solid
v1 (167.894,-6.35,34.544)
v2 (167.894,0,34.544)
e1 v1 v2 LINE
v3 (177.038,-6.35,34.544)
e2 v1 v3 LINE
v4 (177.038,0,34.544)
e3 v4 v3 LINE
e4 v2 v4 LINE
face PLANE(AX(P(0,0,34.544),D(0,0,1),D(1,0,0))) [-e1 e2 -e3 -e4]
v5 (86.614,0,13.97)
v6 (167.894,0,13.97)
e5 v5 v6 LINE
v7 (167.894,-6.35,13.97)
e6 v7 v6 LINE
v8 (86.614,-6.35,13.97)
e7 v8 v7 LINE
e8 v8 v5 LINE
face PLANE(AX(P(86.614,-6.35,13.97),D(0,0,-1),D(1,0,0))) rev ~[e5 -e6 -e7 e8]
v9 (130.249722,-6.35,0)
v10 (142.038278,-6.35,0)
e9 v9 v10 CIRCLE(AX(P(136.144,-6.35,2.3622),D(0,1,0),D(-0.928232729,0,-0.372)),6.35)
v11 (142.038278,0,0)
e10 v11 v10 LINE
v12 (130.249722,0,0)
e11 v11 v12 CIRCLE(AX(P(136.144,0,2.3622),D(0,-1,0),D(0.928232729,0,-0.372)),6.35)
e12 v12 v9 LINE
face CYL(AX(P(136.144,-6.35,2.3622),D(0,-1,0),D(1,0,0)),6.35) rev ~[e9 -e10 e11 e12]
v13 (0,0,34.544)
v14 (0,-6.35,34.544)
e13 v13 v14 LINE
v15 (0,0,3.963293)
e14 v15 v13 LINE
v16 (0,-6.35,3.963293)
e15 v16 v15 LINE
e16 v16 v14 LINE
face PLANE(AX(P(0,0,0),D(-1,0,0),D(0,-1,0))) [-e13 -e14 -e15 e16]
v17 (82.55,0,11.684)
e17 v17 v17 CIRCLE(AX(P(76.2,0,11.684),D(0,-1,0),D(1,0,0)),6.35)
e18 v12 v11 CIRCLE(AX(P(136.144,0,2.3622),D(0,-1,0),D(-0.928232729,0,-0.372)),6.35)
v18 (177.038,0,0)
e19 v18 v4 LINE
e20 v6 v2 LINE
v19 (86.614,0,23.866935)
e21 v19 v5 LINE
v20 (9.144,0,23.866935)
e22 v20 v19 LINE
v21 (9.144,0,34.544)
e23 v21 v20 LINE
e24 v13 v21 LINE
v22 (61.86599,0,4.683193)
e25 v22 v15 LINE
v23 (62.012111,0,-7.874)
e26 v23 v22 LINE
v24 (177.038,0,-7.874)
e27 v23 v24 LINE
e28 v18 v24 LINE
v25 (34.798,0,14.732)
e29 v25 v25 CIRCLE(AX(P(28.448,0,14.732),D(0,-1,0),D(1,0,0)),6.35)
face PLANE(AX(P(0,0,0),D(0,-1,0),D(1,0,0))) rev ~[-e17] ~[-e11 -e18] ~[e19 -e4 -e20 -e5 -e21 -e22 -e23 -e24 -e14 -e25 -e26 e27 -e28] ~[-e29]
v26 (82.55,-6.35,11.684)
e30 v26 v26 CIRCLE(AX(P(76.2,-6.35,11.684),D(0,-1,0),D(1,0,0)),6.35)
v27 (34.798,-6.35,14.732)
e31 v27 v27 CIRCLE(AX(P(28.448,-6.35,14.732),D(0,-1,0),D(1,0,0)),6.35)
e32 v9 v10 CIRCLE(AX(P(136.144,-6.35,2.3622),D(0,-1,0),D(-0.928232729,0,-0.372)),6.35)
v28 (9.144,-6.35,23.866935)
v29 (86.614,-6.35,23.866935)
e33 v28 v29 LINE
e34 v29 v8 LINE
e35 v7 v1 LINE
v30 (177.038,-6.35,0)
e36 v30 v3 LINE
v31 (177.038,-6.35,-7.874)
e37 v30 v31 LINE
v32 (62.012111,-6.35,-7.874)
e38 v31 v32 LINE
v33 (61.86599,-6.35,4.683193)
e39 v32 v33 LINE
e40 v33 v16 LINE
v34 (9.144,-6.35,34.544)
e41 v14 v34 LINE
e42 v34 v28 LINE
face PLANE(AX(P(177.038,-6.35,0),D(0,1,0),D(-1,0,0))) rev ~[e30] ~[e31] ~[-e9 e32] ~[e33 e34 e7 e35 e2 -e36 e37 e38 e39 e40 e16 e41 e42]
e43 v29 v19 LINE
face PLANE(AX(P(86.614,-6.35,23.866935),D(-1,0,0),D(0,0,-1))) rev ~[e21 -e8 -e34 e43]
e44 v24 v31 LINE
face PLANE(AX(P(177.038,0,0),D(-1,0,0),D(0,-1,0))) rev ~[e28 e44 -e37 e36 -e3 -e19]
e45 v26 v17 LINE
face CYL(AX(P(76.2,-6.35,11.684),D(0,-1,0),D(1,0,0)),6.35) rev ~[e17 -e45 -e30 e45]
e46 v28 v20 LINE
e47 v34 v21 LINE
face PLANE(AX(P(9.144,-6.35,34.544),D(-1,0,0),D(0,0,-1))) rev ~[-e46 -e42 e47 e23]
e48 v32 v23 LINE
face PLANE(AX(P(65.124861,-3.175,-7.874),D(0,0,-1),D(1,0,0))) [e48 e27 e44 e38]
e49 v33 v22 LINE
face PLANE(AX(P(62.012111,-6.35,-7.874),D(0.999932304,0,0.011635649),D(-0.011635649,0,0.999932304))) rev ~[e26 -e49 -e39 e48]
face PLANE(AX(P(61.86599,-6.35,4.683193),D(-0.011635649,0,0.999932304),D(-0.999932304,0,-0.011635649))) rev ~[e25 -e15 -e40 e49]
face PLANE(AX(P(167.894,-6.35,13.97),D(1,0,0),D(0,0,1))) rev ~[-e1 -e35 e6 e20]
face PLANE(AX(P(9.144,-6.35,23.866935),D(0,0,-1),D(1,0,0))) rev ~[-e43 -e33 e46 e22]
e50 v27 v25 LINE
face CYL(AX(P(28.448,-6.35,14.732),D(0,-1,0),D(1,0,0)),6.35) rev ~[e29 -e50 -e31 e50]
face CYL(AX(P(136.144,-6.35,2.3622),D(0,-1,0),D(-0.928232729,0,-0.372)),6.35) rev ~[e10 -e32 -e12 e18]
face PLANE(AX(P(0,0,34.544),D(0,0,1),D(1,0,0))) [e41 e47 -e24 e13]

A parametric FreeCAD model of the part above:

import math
import FreeCAD as App
import Part
import Sketcher
from FreeCAD import Vector
Q = App.Units.Quantity

doc = App.newDocument("Part")
body = doc.addObject("PartDesign::Body", "Body")

# Sketch on XZ plane
sketch1 = doc.addObject("Sketcher::SketchObject", "Sketch")
body.addObject(sketch1)
sketch1.AttachmentSupport = (doc.XZ_Plane, [""])
sketch1.MapMode = "FlatFace"
sketch1.addGeometry(Part.LineSegment(Vector(0, 35, 0), Vector(0, 0, 0)), False)
sketch1.addGeometry(Part.LineSegment(Vector(0, 0, 0), Vector(177, 0, 0)), False)
sketch1.addGeometry(Part.LineSegment(Vector(177, 0, 0), Vector(177, 35, 0)), False)
sketch1.addGeometry(Part.LineSegment(Vector(177, 35, 0), Vector(0, 35, 0)), False)
sketch1.addConstraint(Sketcher.Constraint("Coincident", 0, 2, 1, 1))
sketch1.addConstraint(Sketcher.Constraint("Coincident", 1, 2, 2, 1))
sketch1.addConstraint(Sketcher.Constraint("Coincident", 2, 2, 3, 1))
sketch1.addConstraint(Sketcher.Constraint("Coincident", 3, 2, 0, 1))
sketch1.addConstraint(Sketcher.Constraint("Vertical", 0))
sketch1.addConstraint(Sketcher.Constraint("Horizontal", 1))
sketch1.addConstraint(Sketcher.Constraint("Vertical", 2))
sketch1.addConstraint(Sketcher.Constraint("Horizontal", 3))
sketch1.addConstraint(Sketcher.Constraint("Coincident", 0, 2, -1, 1))
sketch1.addConstraint(Sketcher.Constraint("DistanceX", 1, 1, 1, 2, Q("6.97 in")))
sketch1.addConstraint(Sketcher.Constraint("DistanceY", 0, 2, 0, 1, Q("1.36 in")))
pad1 = doc.addObject("PartDesign::Pad", "Pad")
body.addObject(pad1)
pad1.Profile = sketch1
pad1.Length = Q("0.25 in")

# Sketch on XZ plane
sketch2 = doc.addObject("Sketcher::SketchObject", "Sketch001")
body.addObject(sketch2)
sketch2.AttachmentSupport = (doc.XZ_Plane, [""])
sketch2.MapMode = "FlatFace"
sketch2.AttachmentOffset = App.Placement(Vector(0, 0, 0.25 * 25.4), App.Rotation())
sketch2.addGeometry(Part.Circle(Vector(28, 15, 0), Vector(0, 0, 1), 6), False)
sketch2.addConstraint(Sketcher.Constraint("Diameter", 0, Q("0.5 in")))
sketch2.addConstraint(Sketcher.Constraint("DistanceX", -1, 1, 0, 3, Q("1.12 in")))
sketch2.addConstraint(Sketcher.Constraint("DistanceY", -1, 1, 0, 3, Q("0.58 in")))
pocket1 = doc.addObject("PartDesign::Pocket", "Pocket")
body.addObject(pocket1)
pocket1.Profile = sketch2
pocket1.Type = "ThroughAll"

# Sketch on XZ plane
sketch3 = doc.addObject("Sketcher::SketchObject", "Sketch002")
body.addObject(sketch3)
sketch3.AttachmentSupport = (doc.XZ_Plane, [""])
sketch3.MapMode = "FlatFace"
sketch3.AttachmentOffset = App.Placement(Vector(0, 0, 0.25 * 25.4), App.Rotation())
sketch3.addGeometry(Part.Circle(Vector(28, 15, 0), Vector(0, 0, 1), 6), False)
sketch3.addGeometry(Part.Circle(Vector(76, 12, 0), Vector(0, 0, 1), 6), False)
sketch3.addGeometry(Part.Circle(Vector(136, 2, 0), Vector(0, 0, 1), 6), False)
sketch3.addConstraint(Sketcher.Constraint("Equal", 0, 1))
sketch3.addConstraint(Sketcher.Constraint("Equal", 1, 2))
sketch3.addConstraint(Sketcher.Constraint("Diameter", 0, Q("0.5 in")))
sketch3.addConstraint(Sketcher.Constraint("DistanceX", -1, 1, 1, 3, Q("3 in")))
sketch3.addConstraint(Sketcher.Constraint("DistanceX", -1, 1, 0, 3, Q("1.12 in")))
sketch3.addConstraint(Sketcher.Constraint("DistanceY", -1, 1, 0, 3, Q("0.58 in")))
sketch3.addConstraint(Sketcher.Constraint("DistanceY", -1, 1, 1, 3, Q("0.46 in")))
sketch3.addConstraint(Sketcher.Constraint("DistanceX", -1, 1, 2, 3, Q("5.36 in")))
sketch3.addConstraint(Sketcher.Constraint("DistanceY", -1, 1, 2, 3, Q("0.093 in")))
pocket2 = doc.addObject("PartDesign::Pocket", "Pocket001")
body.addObject(pocket2)
pocket2.Profile = sketch3
pocket2.Length = Q("1 in")

# Sketch on XY plane
sketch4 = doc.addObject("Sketcher::SketchObject", "Sketch003")
body.addObject(sketch4)
sketch4.AttachmentSupport = (doc.XY_Plane, [""])
sketch4.MapMode = "FlatFace"
sketch4.addGeometry(Part.LineSegment(Vector(0, -6, 0), Vector(0, 0, 0)), False)
sketch4.addGeometry(Part.LineSegment(Vector(0, 0, 0), Vector(177, 0, 0)), False)
sketch4.addGeometry(Part.LineSegment(Vector(177, 0, 0), Vector(177, -6, 0)), False)
sketch4.addGeometry(Part.LineSegment(Vector(177, -6, 0), Vector(0, -6, 0)), False)
sketch4.addConstraint(Sketcher.Constraint("Coincident", 0, 2, 1, 1))
sketch4.addConstraint(Sketcher.Constraint("Coincident", 1, 2, 2, 1))
sketch4.addConstraint(Sketcher.Constraint("Coincident", 2, 2, 3, 1))
sketch4.addConstraint(Sketcher.Constraint("Coincident", 3, 2, 0, 1))
sketch4.addConstraint(Sketcher.Constraint("Vertical", 0))
sketch4.addConstraint(Sketcher.Constraint("Horizontal", 1))
sketch4.addConstraint(Sketcher.Constraint("Vertical", 2))
sketch4.addConstraint(Sketcher.Constraint("Horizontal", 3))
sketch4.addConstraint(Sketcher.Constraint("Coincident", 0, 2, -1, 1))
sketch4.addConstraint(Sketcher.Constraint("DistanceX", 1, 1, 1, 2, Q("6.97 in")))
sketch4.addConstraint(Sketcher.Constraint("DistanceY", 0, 1, 0, 2, Q("0.25 in")))
pad2 = doc.addObject("PartDesign::Pad", "Pad001")
body.addObject(pad2)
pad2.Profile = sketch4
pad2.Length = Q("0.31 in")
pad2.Reversed = True

# Sketch on XZ plane
sketch5 = doc.addObject("Sketcher::SketchObject", "Sketch004")
body.addObject(sketch5)
sketch5.AttachmentSupport = (doc.XZ_Plane, [""])
sketch5.MapMode = "FlatFace"
sketch5.AttachmentOffset = App.Placement(Vector(0, 0, 0.25 * 25.4), App.Rotation())
sketch5.addGeometry(Part.LineSegment(Vector(142, 0, 0), Vector(130, 0, 0)), False)
sketch5.addGeometry(Part.ArcOfCircle(Part.Circle(Vector(136, 2, 0), Vector(0, 0, 1), 6), math.radians(-158), math.radians(-22)), False)
sketch5.addConstraint(Sketcher.Constraint("Coincident", 0, 1, 1, 2))
sketch5.addConstraint(Sketcher.Constraint("Coincident", 1, 1, 0, 2))
sketch5.addConstraint(Sketcher.Constraint("Horizontal", 0))
sketch5.addConstraint(Sketcher.Constraint("PointOnObject", 0, 1, -1))
sketch5.addConstraint(Sketcher.Constraint("Radius", 1, Q("0.25 in")))
sketch5.addConstraint(Sketcher.Constraint("DistanceX", -1, 1, 1, 3, Q("5.36 in")))
sketch5.addConstraint(Sketcher.Constraint("DistanceY", -1, 1, 1, 3, Q("0.093 in")))
pocket3 = doc.addObject("PartDesign::Pocket", "Pocket002")
body.addObject(pocket3)
pocket3.Profile = sketch5
pocket3.Length = Q("1 in")

# Sketch on XZ plane
sketch6 = doc.addObject("Sketcher::SketchObject", "Sketch005")
body.addObject(sketch6)
sketch6.AttachmentSupport = (doc.XZ_Plane, [""])
sketch6.MapMode = "FlatFace"
sketch6.AttachmentOffset = App.Placement(Vector(0, 0, 0.25 * 25.4), App.Rotation())
sketch6.addGeometry(Part.LineSegment(Vector(168, 35, 0), Vector(9, 35, 0)), False)
sketch6.addGeometry(Part.LineSegment(Vector(9, 35, 0), Vector(9, 24, 0)), False)
sketch6.addGeometry(Part.LineSegment(Vector(9, 24, 0), Vector(87, 24, 0)), False)
sketch6.addGeometry(Part.LineSegment(Vector(87, 24, 0), Vector(87, 14, 0)), False)
sketch6.addGeometry(Part.LineSegment(Vector(87, 14, 0), Vector(168, 14, 0)), False)
sketch6.addGeometry(Part.LineSegment(Vector(168, 14, 0), Vector(168, 35, 0)), False)
sketch6.addGeometry(Part.LineSegment(Vector(62, 5, 0), Vector(0, 4, 0)), False)
sketch6.addGeometry(Part.LineSegment(Vector(0, 4, 0), Vector(0, -8, 0)), False)
sketch6.addGeometry(Part.LineSegment(Vector(0, -8, 0), Vector(62, -8, 0)), False)
sketch6.addGeometry(Part.LineSegment(Vector(62, -8, 0), Vector(62, 5, 0)), False)
sketch6.addConstraint(Sketcher.Constraint("Coincident", 0, 2, 1, 1))
sketch6.addConstraint(Sketcher.Constraint("Coincident", 1, 2, 2, 1))
sketch6.addConstraint(Sketcher.Constraint("Coincident", 2, 2, 3, 1))
sketch6.addConstraint(Sketcher.Constraint("Coincident", 3, 2, 4, 1))
sketch6.addConstraint(Sketcher.Constraint("Coincident", 4, 2, 5, 1))
sketch6.addConstraint(Sketcher.Constraint("Coincident", 5, 2, 0, 1))
sketch6.addConstraint(Sketcher.Constraint("Coincident", 6, 2, 7, 1))
sketch6.addConstraint(Sketcher.Constraint("Coincident", 7, 2, 8, 1))
sketch6.addConstraint(Sketcher.Constraint("Coincident", 8, 2, 9, 1))
sketch6.addConstraint(Sketcher.Constraint("Coincident", 9, 2, 6, 1))
sketch6.addConstraint(Sketcher.Constraint("Horizontal", 0))
sketch6.addConstraint(Sketcher.Constraint("Vertical", 1))
sketch6.addConstraint(Sketcher.Constraint("Horizontal", 2))
sketch6.addConstraint(Sketcher.Constraint("Vertical", 3))
sketch6.addConstraint(Sketcher.Constraint("Horizontal", 4))
sketch6.addConstraint(Sketcher.Constraint("Vertical", 5))
sketch6.addConstraint(Sketcher.Constraint("Vertical", 7))
sketch6.addConstraint(Sketcher.Constraint("Horizontal", 8))
sketch6.addConstraint(Sketcher.Constraint("PointOnObject", 6, 2, -2))
sketch6.addConstraint(Sketcher.Constraint("Perpendicular", 6, 9))
sketch6.addConstraint(Sketcher.Constraint("DistanceX", 4, 1, 4, 2, Q("3.2 in")))
sketch6.addConstraint(Sketcher.Constraint("DistanceX", 0, 2, 0, 1, Q("6.25 in")))
sketch6.addConstraint(Sketcher.Constraint("DistanceY", 5, 1, 5, 2, Q("0.81 in")))
sketch6.addConstraint(Sketcher.Constraint("DistanceX", -1, 1, 0, 2, Q("0.36 in")))
sketch6.addConstraint(Sketcher.Constraint("DistanceY", -1, 1, 0, 2, Q("1.36 in")))
sketch6.addConstraint(Sketcher.Constraint("DistanceY", 7, 2, -1, 1, Q("0.31 in")))
sketch6.addConstraint(Sketcher.Constraint("DistanceX", 8, 1, 8, 2, Q("62.012111 mm")))
sketch6.addConstraint(Sketcher.Constraint("Distance", 6, Q("61.870179 mm")))
sketch6.addConstraint(Sketcher.Constraint("DistanceY", 1, 2, 1, 1, Q("10.677065 mm")))
sketch6.addConstraint(Sketcher.Constraint("DistanceY", 7, 2, 7, 1, Q("11.837293 mm")))
pocket4 = doc.addObject("PartDesign::Pocket", "Pocket003")
body.addObject(pocket4)
pocket4.Profile = sketch6
pocket4.Length = Q("1 in")

doc.recompute()
